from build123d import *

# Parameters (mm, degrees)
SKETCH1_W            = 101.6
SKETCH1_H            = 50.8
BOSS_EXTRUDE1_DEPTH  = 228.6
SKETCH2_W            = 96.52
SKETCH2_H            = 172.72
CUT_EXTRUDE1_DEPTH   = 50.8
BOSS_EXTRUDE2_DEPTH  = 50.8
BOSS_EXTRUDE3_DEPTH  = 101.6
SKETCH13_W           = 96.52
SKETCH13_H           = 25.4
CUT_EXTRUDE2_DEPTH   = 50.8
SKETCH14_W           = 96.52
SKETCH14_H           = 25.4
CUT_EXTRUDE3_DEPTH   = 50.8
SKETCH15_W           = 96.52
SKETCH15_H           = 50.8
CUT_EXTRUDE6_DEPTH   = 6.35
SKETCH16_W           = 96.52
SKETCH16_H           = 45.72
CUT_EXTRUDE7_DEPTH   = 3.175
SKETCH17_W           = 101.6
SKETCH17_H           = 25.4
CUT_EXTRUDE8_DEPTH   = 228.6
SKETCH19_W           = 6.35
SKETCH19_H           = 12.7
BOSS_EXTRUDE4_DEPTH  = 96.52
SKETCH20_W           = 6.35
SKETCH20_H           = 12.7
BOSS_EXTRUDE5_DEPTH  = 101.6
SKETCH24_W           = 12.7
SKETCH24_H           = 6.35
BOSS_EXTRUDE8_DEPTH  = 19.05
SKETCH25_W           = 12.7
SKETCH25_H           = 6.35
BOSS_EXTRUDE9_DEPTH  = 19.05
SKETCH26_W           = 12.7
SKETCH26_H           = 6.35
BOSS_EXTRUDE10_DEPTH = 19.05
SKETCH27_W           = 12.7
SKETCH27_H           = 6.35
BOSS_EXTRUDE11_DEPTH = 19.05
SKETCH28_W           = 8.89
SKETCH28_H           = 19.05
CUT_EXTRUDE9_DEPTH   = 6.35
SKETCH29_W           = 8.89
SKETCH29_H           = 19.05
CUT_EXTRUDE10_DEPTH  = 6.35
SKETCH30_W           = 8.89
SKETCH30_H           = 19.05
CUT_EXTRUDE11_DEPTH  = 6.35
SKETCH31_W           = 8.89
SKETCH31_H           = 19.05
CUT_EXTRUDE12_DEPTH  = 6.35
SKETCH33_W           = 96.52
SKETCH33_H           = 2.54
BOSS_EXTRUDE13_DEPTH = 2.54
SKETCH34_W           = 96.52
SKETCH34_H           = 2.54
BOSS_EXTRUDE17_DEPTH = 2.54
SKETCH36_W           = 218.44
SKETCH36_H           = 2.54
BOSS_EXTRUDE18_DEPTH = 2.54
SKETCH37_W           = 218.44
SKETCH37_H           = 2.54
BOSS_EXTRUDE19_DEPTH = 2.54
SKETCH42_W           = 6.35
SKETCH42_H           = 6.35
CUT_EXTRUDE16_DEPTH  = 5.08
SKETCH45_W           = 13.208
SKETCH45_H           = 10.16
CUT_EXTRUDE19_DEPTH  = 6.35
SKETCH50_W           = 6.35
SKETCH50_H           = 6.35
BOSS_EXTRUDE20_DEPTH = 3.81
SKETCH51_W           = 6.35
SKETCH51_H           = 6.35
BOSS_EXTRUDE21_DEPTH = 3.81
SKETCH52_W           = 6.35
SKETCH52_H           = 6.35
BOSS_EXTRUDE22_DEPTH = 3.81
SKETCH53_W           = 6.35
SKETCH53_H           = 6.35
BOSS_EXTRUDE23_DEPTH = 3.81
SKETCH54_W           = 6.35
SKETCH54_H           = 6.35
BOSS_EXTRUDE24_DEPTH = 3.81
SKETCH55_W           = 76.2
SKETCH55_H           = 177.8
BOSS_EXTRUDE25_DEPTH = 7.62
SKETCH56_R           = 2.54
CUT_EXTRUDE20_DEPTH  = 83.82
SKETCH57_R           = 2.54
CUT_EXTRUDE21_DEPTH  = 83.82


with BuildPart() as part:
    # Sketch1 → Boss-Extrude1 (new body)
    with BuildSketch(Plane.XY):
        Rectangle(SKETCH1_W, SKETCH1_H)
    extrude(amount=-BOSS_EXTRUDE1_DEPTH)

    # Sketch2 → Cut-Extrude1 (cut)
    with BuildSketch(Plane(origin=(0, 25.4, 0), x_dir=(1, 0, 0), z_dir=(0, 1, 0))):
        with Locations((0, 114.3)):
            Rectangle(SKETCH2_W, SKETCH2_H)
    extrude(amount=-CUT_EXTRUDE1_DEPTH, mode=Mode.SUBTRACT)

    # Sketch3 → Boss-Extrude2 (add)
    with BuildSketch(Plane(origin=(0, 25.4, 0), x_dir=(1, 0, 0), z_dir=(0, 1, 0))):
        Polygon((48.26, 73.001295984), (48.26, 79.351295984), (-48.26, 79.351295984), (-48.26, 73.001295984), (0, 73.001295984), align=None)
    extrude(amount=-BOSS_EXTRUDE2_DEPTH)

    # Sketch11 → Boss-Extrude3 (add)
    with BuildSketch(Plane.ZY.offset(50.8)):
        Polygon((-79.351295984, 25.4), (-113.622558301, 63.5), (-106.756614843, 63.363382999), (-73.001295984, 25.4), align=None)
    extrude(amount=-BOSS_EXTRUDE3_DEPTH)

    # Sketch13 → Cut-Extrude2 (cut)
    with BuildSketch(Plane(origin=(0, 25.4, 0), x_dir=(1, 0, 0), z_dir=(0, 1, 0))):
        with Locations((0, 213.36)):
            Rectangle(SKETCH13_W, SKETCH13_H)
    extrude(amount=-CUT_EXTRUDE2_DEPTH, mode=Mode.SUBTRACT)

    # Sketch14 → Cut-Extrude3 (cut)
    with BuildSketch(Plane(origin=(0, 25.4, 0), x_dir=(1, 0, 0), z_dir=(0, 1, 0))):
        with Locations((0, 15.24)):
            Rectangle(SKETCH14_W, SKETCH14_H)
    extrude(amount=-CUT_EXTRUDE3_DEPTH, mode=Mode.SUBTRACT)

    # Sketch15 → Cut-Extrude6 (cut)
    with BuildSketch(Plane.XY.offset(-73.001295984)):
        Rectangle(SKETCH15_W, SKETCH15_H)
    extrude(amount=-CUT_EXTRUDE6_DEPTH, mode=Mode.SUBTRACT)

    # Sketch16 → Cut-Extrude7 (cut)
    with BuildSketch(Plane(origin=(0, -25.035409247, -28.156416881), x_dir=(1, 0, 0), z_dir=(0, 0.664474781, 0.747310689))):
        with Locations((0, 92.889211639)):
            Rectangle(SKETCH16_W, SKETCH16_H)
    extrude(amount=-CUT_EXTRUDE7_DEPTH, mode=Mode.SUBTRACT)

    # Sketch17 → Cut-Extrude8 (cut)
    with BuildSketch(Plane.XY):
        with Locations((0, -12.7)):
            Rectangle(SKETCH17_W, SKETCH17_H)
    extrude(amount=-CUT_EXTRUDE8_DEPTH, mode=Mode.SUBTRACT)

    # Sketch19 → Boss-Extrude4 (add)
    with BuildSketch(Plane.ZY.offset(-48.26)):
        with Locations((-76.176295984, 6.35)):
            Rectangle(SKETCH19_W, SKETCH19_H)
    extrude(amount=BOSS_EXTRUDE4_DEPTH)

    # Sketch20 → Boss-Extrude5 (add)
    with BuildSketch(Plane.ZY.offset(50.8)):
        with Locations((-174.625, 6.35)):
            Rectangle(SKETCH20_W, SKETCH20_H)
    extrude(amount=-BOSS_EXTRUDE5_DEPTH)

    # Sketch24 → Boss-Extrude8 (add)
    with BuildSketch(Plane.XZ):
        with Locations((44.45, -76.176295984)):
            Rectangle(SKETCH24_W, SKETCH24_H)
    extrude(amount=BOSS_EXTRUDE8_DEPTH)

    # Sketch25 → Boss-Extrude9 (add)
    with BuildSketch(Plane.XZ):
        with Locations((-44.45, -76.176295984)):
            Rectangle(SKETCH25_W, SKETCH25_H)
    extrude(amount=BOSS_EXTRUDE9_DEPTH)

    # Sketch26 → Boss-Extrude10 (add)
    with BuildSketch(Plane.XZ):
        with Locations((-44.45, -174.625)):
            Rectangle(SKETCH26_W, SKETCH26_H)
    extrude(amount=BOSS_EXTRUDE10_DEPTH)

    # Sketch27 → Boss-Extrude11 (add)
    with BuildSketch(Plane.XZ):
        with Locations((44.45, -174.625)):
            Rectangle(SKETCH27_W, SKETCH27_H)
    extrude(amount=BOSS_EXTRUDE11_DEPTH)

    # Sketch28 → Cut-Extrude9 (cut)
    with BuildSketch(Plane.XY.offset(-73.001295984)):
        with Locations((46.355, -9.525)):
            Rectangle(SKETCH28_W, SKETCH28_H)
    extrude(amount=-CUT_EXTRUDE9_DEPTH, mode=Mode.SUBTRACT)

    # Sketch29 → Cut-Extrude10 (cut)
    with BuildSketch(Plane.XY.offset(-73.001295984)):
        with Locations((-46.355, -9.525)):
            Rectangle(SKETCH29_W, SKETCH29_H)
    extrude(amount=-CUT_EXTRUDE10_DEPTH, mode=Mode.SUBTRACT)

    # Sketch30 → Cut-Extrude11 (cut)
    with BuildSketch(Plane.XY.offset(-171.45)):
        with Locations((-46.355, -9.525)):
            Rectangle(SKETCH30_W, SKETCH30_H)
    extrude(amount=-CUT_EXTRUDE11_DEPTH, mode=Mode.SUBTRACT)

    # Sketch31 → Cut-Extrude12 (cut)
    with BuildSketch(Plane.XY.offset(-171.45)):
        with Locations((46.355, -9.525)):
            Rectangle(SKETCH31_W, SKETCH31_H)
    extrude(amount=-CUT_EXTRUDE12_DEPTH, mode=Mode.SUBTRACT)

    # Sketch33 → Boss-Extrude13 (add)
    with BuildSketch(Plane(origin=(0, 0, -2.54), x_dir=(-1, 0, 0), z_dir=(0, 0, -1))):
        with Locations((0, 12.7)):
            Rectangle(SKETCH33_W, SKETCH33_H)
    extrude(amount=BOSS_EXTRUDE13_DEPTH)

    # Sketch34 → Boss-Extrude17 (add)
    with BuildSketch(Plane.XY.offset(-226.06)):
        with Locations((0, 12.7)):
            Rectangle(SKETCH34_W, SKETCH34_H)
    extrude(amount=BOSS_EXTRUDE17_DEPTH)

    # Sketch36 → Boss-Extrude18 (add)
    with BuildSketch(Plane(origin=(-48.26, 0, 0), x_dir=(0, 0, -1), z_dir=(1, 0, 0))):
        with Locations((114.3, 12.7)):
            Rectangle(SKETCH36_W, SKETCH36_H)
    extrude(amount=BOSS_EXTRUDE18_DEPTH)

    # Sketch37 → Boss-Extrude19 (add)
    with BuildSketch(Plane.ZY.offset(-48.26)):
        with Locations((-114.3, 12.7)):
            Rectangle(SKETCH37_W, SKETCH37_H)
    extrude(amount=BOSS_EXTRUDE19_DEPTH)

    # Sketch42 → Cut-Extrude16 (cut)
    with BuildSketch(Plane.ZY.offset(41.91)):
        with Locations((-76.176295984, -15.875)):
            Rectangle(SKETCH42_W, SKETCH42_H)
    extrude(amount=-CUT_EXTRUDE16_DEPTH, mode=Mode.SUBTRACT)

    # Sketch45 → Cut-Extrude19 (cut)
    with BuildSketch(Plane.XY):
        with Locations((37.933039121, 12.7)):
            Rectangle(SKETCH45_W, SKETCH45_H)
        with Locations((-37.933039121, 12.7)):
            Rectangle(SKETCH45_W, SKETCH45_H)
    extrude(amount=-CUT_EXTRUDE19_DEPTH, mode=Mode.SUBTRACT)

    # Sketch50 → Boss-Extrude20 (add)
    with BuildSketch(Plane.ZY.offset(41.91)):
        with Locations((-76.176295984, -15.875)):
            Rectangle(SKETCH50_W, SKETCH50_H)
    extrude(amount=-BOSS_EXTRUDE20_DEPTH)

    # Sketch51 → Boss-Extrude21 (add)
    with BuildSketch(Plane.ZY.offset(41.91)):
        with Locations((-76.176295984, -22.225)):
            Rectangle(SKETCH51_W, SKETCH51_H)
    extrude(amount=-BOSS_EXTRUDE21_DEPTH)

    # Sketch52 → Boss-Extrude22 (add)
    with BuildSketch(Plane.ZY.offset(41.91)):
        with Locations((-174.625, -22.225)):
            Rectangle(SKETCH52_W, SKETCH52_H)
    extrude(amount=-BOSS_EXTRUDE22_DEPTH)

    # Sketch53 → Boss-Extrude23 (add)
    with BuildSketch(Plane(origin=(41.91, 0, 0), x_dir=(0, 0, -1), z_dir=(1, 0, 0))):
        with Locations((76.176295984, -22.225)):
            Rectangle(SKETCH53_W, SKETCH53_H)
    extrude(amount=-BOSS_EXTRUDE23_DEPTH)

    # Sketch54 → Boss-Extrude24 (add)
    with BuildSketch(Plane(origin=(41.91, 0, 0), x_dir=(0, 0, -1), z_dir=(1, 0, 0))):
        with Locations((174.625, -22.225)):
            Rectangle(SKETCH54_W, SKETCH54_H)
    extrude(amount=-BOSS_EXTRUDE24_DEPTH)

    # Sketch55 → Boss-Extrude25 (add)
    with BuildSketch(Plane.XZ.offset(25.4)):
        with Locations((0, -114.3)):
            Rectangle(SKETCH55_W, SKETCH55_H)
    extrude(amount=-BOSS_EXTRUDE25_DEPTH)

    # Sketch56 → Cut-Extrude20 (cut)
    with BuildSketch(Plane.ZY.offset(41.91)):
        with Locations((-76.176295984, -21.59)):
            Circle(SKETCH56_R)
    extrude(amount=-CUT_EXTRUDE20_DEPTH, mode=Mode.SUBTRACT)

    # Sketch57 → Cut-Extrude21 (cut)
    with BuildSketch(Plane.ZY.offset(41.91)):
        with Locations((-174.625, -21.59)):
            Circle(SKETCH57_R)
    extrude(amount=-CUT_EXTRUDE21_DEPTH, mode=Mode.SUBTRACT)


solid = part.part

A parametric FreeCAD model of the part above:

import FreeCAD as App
import Part
import Sketcher
from FreeCAD import Vector
Q = App.Units.Quantity

doc = App.newDocument("Part")
body = doc.addObject("PartDesign::Body", "Body")

# Sketch on XY plane
sketch1 = body.newObject("Sketcher::SketchObject", "Sketch")
sketch1.AttachmentSupport = (doc.getObject("XY_Plane"), [""])
sketch1.MapMode = "FlatFace"
sketch1.addGeometry([
    Part.LineSegment(Vector(-51, 25, 0), Vector(-51, -25, 0)),
    Part.LineSegment(Vector(-51, -25, 0), Vector(51, -25, 0)),
    Part.LineSegment(Vector(51, -25, 0), Vector(51, 25, 0)),
    Part.LineSegment(Vector(51, 25, 0), Vector(-51, 25, 0)),
], False)
sketch1.addConstraint([
    Sketcher.Constraint("Coincident", 0, 2, 1, 1),
    Sketcher.Constraint("Coincident", 1, 2, 2, 1),
    Sketcher.Constraint("Coincident", 2, 2, 3, 1),
    Sketcher.Constraint("Coincident", 3, 2, 0, 1),
    Sketcher.Constraint("Vertical", 0),
    Sketcher.Constraint("Horizontal", 1),
    Sketcher.Constraint("Vertical", 2),
    Sketcher.Constraint("Horizontal", 3),
    Sketcher.Constraint("Symmetric", 0, 2, 2, 2, -1, 1),
    Sketcher.Constraint("DistanceX", 1, 1, 1, 2, Q("4 in")),
    Sketcher.Constraint("DistanceY", 0, 2, 0, 1, Q("2 in")),
])
pad1 = body.newObject("PartDesign::Pad", "Pad")
pad1.Profile = sketch1
pad1.Length = Q("9 in")
pad1.Reversed = True

# Sketch on XZ plane
sketch2 = body.newObject("Sketcher::SketchObject", "Sketch001")
sketch2.AttachmentSupport = (doc.getObject("XZ_Plane"), [""])
sketch2.MapMode = "FlatFace"
sketch2.AttachmentOffset = App.Placement(Vector(0, 0, -1 * 25.4), App.Rotation())
sketch2.addGeometry([
    Part.LineSegment(Vector(-48, -201, 0), Vector(-48, -28, 0)),
    Part.LineSegment(Vector(-48, -28, 0), Vector(48, -28, 0)),
    Part.LineSegment(Vector(48, -28, 0), Vector(48, -201, 0)),
    Part.LineSegment(Vector(48, -201, 0), Vector(-48, -201, 0)),
], False)
sketch2.addConstraint([
    Sketcher.Constraint("Coincident", 0, 2, 1, 1),
    Sketcher.Constraint("Coincident", 1, 2, 2, 1),
    Sketcher.Constraint("Coincident", 2, 2, 3, 1),
    Sketcher.Constraint("Coincident", 3, 2, 0, 1),
    Sketcher.Constraint("Vertical", 0),
    Sketcher.Constraint("Horizontal", 1),
    Sketcher.Constraint("Vertical", 2),
    Sketcher.Constraint("Horizontal", 3),
    Sketcher.Constraint("DistanceX", 1, 1, 1, 2, Q("3.8 in")),
    Sketcher.Constraint("DistanceY", 0, 1, 0, 2, Q("6.8 in")),
    Sketcher.Constraint("DistanceX", 0, 2, -1, 1, Q("1.9 in")),
    Sketcher.Constraint("DistanceY", 0, 2, -1, 1, Q("1.1 in")),
])
pocket1 = body.newObject("PartDesign::Pocket", "Pocket")
pocket1.Profile = sketch2
pocket1.Length = Q("2 in")
pocket1.Reversed = True

# Sketch on XZ plane
sketch3 = body.newObject("Sketcher::SketchObject", "Sketch002")
sketch3.AttachmentSupport = (doc.getObject("XZ_Plane"), [""])
sketch3.MapMode = "FlatFace"
sketch3.AttachmentOffset = App.Placement(Vector(0, 0, -1 * 25.4), App.Rotation())
sketch3.addGeometry([
    Part.LineSegment(Vector(48, -73, 0), Vector(48, -79, 0)),
    Part.LineSegment(Vector(48, -79, 0), Vector(-48, -79, 0)),
    Part.LineSegment(Vector(-48, -79, 0), Vector(-48, -73, 0)),
    Part.LineSegment(Vector(-48, -73, 0), Vector(48, -73, 0)),
], False)
sketch3.addConstraint([
    Sketcher.Constraint("Coincident", 0, 2, 1, 1),
    Sketcher.Constraint("Coincident", 1, 2, 2, 1),
    Sketcher.Constraint("Coincident", 2, 2, 3, 1),
    Sketcher.Constraint("Coincident", 3, 2, 0, 1),
    Sketcher.Constraint("Vertical", 0),
    Sketcher.Constraint("Horizontal", 1),
    Sketcher.Constraint("Vertical", 2),
    Sketcher.Constraint("Horizontal", 3),
    Sketcher.Constraint("DistanceX", 1, 2, 1, 1, Q("3.8 in")),
    Sketcher.Constraint("DistanceY", 0, 2, 0, 1, Q("0.25 in")),
    Sketcher.Constraint("DistanceX", -1, 1, 0, 2, Q("1.9 in")),
    Sketcher.Constraint("DistanceY", 0, 2, -1, 1, Q("79.351296 mm")),
])
pad2 = body.newObject("PartDesign::Pad", "Pad001")
pad2.Profile = sketch3
pad2.Length = Q("2 in")

# Sketch on YZ plane
sketch4 = body.newObject("Sketcher::SketchObject", "Sketch003")
sketch4.AttachmentSupport = (doc.getObject("YZ_Plane"), [""])
sketch4.MapMode = "FlatFace"
sketch4.AttachmentOffset = App.Placement(Vector(0, 0, -2 * 25.4), App.Rotation())
sketch4.addGeometry([
    Part.LineSegment(Vector(64, -114, 0), Vector(25, -79, 0)),
    Part.LineSegment(Vector(25, -79, 0), Vector(25, -73, 0)),
    Part.LineSegment(Vector(25, -73, 0), Vector(63, -107, 0)),
    Part.LineSegment(Vector(63, -107, 0), Vector(64, -114, 0)),
], False)
sketch4.addConstraint([
    Sketcher.Constraint("Coincident", 0, 2, 1, 1),
    Sketcher.Constraint("Coincident", 1, 2, 2, 1),
    Sketcher.Constraint("Coincident", 2, 2, 3, 1),
    Sketcher.Constraint("Coincident", 3, 2, 0, 1),
    Sketcher.Constraint("Vertical", 1),
    Sketcher.Constraint("Distance", 2, Q("2 in")),
    Sketcher.Constraint("DistanceX", -1, 1, 0, 2, Q("1 in")),
    Sketcher.Constraint("DistanceY", 1, 1, 1, 2, Q("0.25 in")),
    Sketcher.Constraint("DistanceX", -1, 1, 3, 2, Q("2.5 in")),
    Sketcher.Constraint("DistanceY", 3, 2, -1, 1, Q("113.622558 mm")),
    Sketcher.Constraint("DistanceY", 2, 2, 0, 2, Q("27.405319 mm")),
    Sketcher.Constraint("Distance", 0, Q("51.245775 mm")),
])
pad3 = body.newObject("PartDesign::Pad", "Pad002")
pad3.Profile = sketch4
pad3.Length = Q("4 in")

# Sketch on XZ plane
sketch5 = body.newObject("Sketcher::SketchObject", "Sketch004")
sketch5.AttachmentSupport = (doc.getObject("XZ_Plane"), [""])
sketch5.MapMode = "FlatFace"
sketch5.AttachmentOffset = App.Placement(Vector(0, 0, -1 * 25.4), App.Rotation())
sketch5.addGeometry([
    Part.LineSegment(Vector(-48, -226, 0), Vector(-48, -201, 0)),
    Part.LineSegment(Vector(-48, -201, 0), Vector(48, -201, 0)),
    Part.LineSegment(Vector(48, -201, 0), Vector(48, -226, 0)),
    Part.LineSegment(Vector(48, -226, 0), Vector(-48, -226, 0)),
], False)
sketch5.addConstraint([
    Sketcher.Constraint("Coincident", 0, 2, 1, 1),
    Sketcher.Constraint("Coincident", 1, 2, 2, 1),
    Sketcher.Constraint("Coincident", 2, 2, 3, 1),
    Sketcher.Constraint("Coincident", 3, 2, 0, 1),
    Sketcher.Constraint("Vertical", 0),
    Sketcher.Constraint("Horizontal", 1),
    Sketcher.Constraint("Vertical", 2),
    Sketcher.Constraint("Horizontal", 3),
    Sketcher.Constraint("DistanceY", 0, 1, 0, 2, Q("1 in")),
    Sketcher.Constraint("DistanceX", 1, 1, 1, 2, Q("3.8 in")),
    Sketcher.Constraint("DistanceX", 0, 2, -1, 1, Q("1.9 in")),
    Sketcher.Constraint("DistanceY", 0, 2, -1, 1, Q("7.9 in")),
])
pocket2 = body.newObject("PartDesign::Pocket", "Pocket001")
pocket2.Profile = sketch5
pocket2.Length = Q("2 in")
pocket2.Reversed = True

# Sketch on XZ plane
sketch6 = body.newObject("Sketcher::SketchObject", "Sketch005")
sketch6.AttachmentSupport = (doc.getObject("XZ_Plane"), [""])
sketch6.MapMode = "FlatFace"
sketch6.AttachmentOffset = App.Placement(Vector(0, 0, -1 * 25.4), App.Rotation())
sketch6.addGeometry([
    Part.LineSegment(Vector(-48, -28, 0), Vector(-48, -3, 0)),
    Part.LineSegment(Vector(-48, -3, 0), Vector(48, -3, 0)),
    Part.LineSegment(Vector(48, -3, 0), Vector(48, -28, 0)),
    Part.LineSegment(Vector(48, -28, 0), Vector(-48, -28, 0)),
], False)
sketch6.addConstraint([
    Sketcher.Constraint("Coincident", 0, 2, 1, 1),
    Sketcher.Constraint("Coincident", 1, 2, 2, 1),
    Sketcher.Constraint("Coincident", 2, 2, 3, 1),
    Sketcher.Constraint("Coincident", 3, 2, 0, 1),
    Sketcher.Constraint("Vertical", 0),
    Sketcher.Constraint("Horizontal", 1),
    Sketcher.Constraint("Vertical", 2),
    Sketcher.Constraint("Horizontal", 3),
    Sketcher.Constraint("DistanceY", 0, 1, 0, 2, Q("1 in")),
    Sketcher.Constraint("DistanceX", 1, 1, 1, 2, Q("3.8 in")),
    Sketcher.Constraint("DistanceX", 0, 2, -1, 1, Q("1.9 in")),
    Sketcher.Constraint("DistanceY", 0, 2, -1, 1, Q("0.1 in")),
])
pocket3 = body.newObject("PartDesign::Pocket", "Pocket002")
pocket3.Profile = sketch6
pocket3.Length = Q("2 in")
pocket3.Reversed = True

# Sketch on XY plane
sketch7 = body.newObject("Sketcher::SketchObject", "Sketch006")
sketch7.AttachmentSupport = (doc.getObject("XY_Plane"), [""])
sketch7.MapMode = "FlatFace"
sketch7.AttachmentOffset = App.Placement(Vector(0, 0, -73.001296), App.Rotation())
sketch7.addGeometry([
    Part.LineSegment(Vector(-48, 25, 0), Vector(-48, -25, 0)),
    Part.LineSegment(Vector(-48, -25, 0), Vector(48, -25, 0)),
    Part.LineSegment(Vector(48, -25, 0), Vector(48, 25, 0)),
    Part.LineSegment(Vector(48, 25, 0), Vector(-48, 25, 0)),
], False)
sketch7.addConstraint([
    Sketcher.Constraint("Coincident", 0, 2, 1, 1),
    Sketcher.Constraint("Coincident", 1, 2, 2, 1),
    Sketcher.Constraint("Coincident", 2, 2, 3, 1),
    Sketcher.Constraint("Coincident", 3, 2, 0, 1),
    Sketcher.Constraint("Vertical", 0),
    Sketcher.Constraint("Horizontal", 1),
    Sketcher.Constraint("Vertical", 2),
    Sketcher.Constraint("Horizontal", 3),
    Sketcher.Constraint("Symmetric", 0, 2, 2, 2, -1, 1),
    Sketcher.Constraint("DistanceY", 0, 2, 0, 1, Q("2 in")),
    Sketcher.Constraint("DistanceX", 1, 1, 1, 2, Q("3.8 in")),
])
pocket4 = body.newObject("PartDesign::Pocket", "Pocket003")
pocket4.Profile = sketch7
pocket4.Length = Q("0.25 in")

# Sketch on an angled plane
sketch8 = body.newObject("Sketcher::SketchObject", "Sketch007")
sketch8.Placement = App.Placement(Vector(0, -25.035409, -28.156417), App.Rotation(Vector(1, 0, 0), Vector(0, 0.747310689, -0.664474781), Vector(0, 0.664474781, 0.747310689), "ZXY"))
sketch8.addGeometry([
    Part.LineSegment(Vector(-48, 116, 0), Vector(-48, 70, 0)),
    Part.LineSegment(Vector(-48, 70, 0), Vector(48, 70, 0)),
    Part.LineSegment(Vector(48, 70, 0), Vector(48, 116, 0)),
    Part.LineSegment(Vector(48, 116, 0), Vector(-48, 116, 0)),
], False)
sketch8.addConstraint([
    Sketcher.Constraint("Coincident", 0, 2, 1, 1),
    Sketcher.Constraint("Coincident", 1, 2, 2, 1),
    Sketcher.Constraint("Coincident", 2, 2, 3, 1),
    Sketcher.Constraint("Coincident", 3, 2, 0, 1),
    Sketcher.Constraint("Vertical", 0),
    Sketcher.Constraint("Horizontal", 1),
    Sketcher.Constraint("Vertical", 2),
    Sketcher.Constraint("Horizontal", 3),
    Sketcher.Constraint("DistanceX", 1, 1, 1, 2, Q("3.8 in")),
    Sketcher.Constraint("DistanceY", 0, 2, 0, 1, Q("1.8 in")),
    Sketcher.Constraint("DistanceX", 0, 2, -1, 1, Q("1.9 in")),
    Sketcher.Constraint("DistanceY", -1, 1, 0, 2, Q("70.029212 mm")),
])
pocket5 = body.newObject("PartDesign::Pocket", "Pocket004")
pocket5.Profile = sketch8
pocket5.Length = Q("0.125 in")

# Sketch on XY plane
sketch9 = body.newObject("Sketcher::SketchObject", "Sketch008")
sketch9.AttachmentSupport = (doc.getObject("XY_Plane"), [""])
sketch9.MapMode = "FlatFace"
sketch9.addGeometry([
    Part.LineSegment(Vector(-51, 0, 0), Vector(-51, -25, 0)),
    Part.LineSegment(Vector(-51, -25, 0), Vector(51, -25, 0)),
    Part.LineSegment(Vector(51, -25, 0), Vector(51, 0, 0)),
    Part.LineSegment(Vector(51, 0, 0), Vector(-51, 0, 0)),
], False)
sketch9.addConstraint([
    Sketcher.Constraint("Coincident", 0, 2, 1, 1),
    Sketcher.Constraint("Coincident", 1, 2, 2, 1),
    Sketcher.Constraint("Coincident", 2, 2, 3, 1),
    Sketcher.Constraint("Coincident", 3, 2, 0, 1),
    Sketcher.Constraint("Vertical", 0),
    Sketcher.Constraint("Horizontal", 1),
    Sketcher.Constraint("Vertical", 2),
    Sketcher.Constraint("Horizontal", 3),
    Sketcher.Constraint("Symmetric", 2, 2, 3, 2, -1, 1),
    Sketcher.Constraint("DistanceX", 1, 1, 1, 2, Q("4 in")),
    Sketcher.Constraint("DistanceY", 0, 2, 0, 1, Q("1 in")),
])
pocket6 = body.newObject("PartDesign::Pocket", "Pocket005")
pocket6.Profile = sketch9
pocket6.Length = Q("9 in")

# Sketch on YZ plane
sketch10 = body.newObject("Sketcher::SketchObject", "Sketch009")
sketch10.AttachmentSupport = (doc.getObject("YZ_Plane"), [""])
sketch10.MapMode = "FlatFace"
sketch10.AttachmentOffset = App.Placement(Vector(0, 0, 1.9 * 25.4), App.Rotation())
sketch10.addGeometry([
    Part.LineSegment(Vector(13, -79, 0), Vector(0, -79, 0)),
    Part.LineSegment(Vector(0, -79, 0), Vector(0, -73, 0)),
    Part.LineSegment(Vector(0, -73, 0), Vector(13, -73, 0)),
    Part.LineSegment(Vector(13, -73, 0), Vector(13, -79, 0)),
], False)
sketch10.addConstraint([
    Sketcher.Constraint("Coincident", 0, 2, 1, 1),
    Sketcher.Constraint("Coincident", 1, 2, 2, 1),
    Sketcher.Constraint("Coincident", 2, 2, 3, 1),
    Sketcher.Constraint("Coincident", 3, 2, 0, 1),
    Sketcher.Constraint("Horizontal", 0),
    Sketcher.Constraint("Vertical", 1),
    Sketcher.Constraint("Horizontal", 2),
    Sketcher.Constraint("Vertical", 3),
    Sketcher.Constraint("PointOnObject", 0, 2, -2),
    Sketcher.Constraint("DistanceX", 0, 2, 0, 1, Q("0.5 in")),
    Sketcher.Constraint("DistanceY", 1, 1, 1, 2, Q("0.25 in")),
    Sketcher.Constraint("DistanceY", 0, 2, -1, 1, Q("79.351296 mm")),
])
pad4 = body.newObject("PartDesign::Pad", "Pad003")
pad4.Profile = sketch10
pad4.Length = Q("3.8 in")
pad4.Reversed = True

# Sketch on YZ plane
sketch11 = body.newObject("Sketcher::SketchObject", "Sketch010")
sketch11.AttachmentSupport = (doc.getObject("YZ_Plane"), [""])
sketch11.MapMode = "FlatFace"
sketch11.AttachmentOffset = App.Placement(Vector(0, 0, -2 * 25.4), App.Rotation())
sketch11.addGeometry([
    Part.LineSegment(Vector(13, -178, 0), Vector(0, -178, 0)),
    Part.LineSegment(Vector(0, -178, 0), Vector(0, -171, 0)),
    Part.LineSegment(Vector(0, -171, 0), Vector(13, -171, 0)),
    Part.LineSegment(Vector(13, -171, 0), Vector(13, -178, 0)),
], False)
sketch11.addConstraint([
    Sketcher.Constraint("Coincident", 0, 2, 1, 1),
    Sketcher.Constraint("Coincident", 1, 2, 2, 1),
    Sketcher.Constraint("Coincident", 2, 2, 3, 1),
    Sketcher.Constraint("Coincident", 3, 2, 0, 1),
    Sketcher.Constraint("Horizontal", 0),
    Sketcher.Constraint("Vertical", 1),
    Sketcher.Constraint("Horizontal", 2),
    Sketcher.Constraint("Vertical", 3),
    Sketcher.Constraint("PointOnObject", 0, 2, -2),
    Sketcher.Constraint("DistanceX", 0, 2, 0, 1, Q("0.5 in")),
    Sketcher.Constraint("DistanceY", 0, 2, -1, 1, Q("7 in")),
    Sketcher.Constraint("DistanceY", 1, 1, 1, 2, Q("0.25 in")),
])
pad5 = body.newObject("PartDesign::Pad", "Pad004")
pad5.Profile = sketch11
pad5.Length = Q("4 in")

# Sketch on XZ plane
sketch12 = body.newObject("Sketcher::SketchObject", "Sketch011")
sketch12.AttachmentSupport = (doc.getObject("XZ_Plane"), [""])
sketch12.MapMode = "FlatFace"
sketch12.addGeometry([
    Part.LineSegment(Vector(38, -73, 0), Vector(38, -79, 0)),
    Part.LineSegment(Vector(38, -79, 0), Vector(51, -79, 0)),
    Part.LineSegment(Vector(51, -79, 0), Vector(51, -73, 0)),
    Part.LineSegment(Vector(51, -73, 0), Vector(38, -73, 0)),
], False)
sketch12.addConstraint([
    Sketcher.Constraint("Coincident", 0, 2, 1, 1),
    Sketcher.Constraint("Coincident", 1, 2, 2, 1),
    Sketcher.Constraint("Coincident", 2, 2, 3, 1),
    Sketcher.Constraint("Coincident", 3, 2, 0, 1),
    Sketcher.Constraint("Vertical", 0),
    Sketcher.Constraint("Horizontal", 1),
    Sketcher.Constraint("Vertical", 2),
    Sketcher.Constraint("Horizontal", 3),
    Sketcher.Constraint("DistanceX", 1, 1, 1, 2, Q("0.5 in")),
    Sketcher.Constraint("DistanceX", -1, 1, 1, 2, Q("2 in")),
    Sketcher.Constraint("DistanceY", 0, 2, 0, 1, Q("0.25 in")),
    Sketcher.Constraint("DistanceY", 0, 2, -1, 1, Q("79.351296 mm")),
])
pad6 = body.newObject("PartDesign::Pad", "Pad005")
pad6.Profile = sketch12
pad6.Length = Q("0.75 in")

# Sketch on XZ plane
sketch13 = body.newObject("Sketcher::SketchObject", "Sketch012")
sketch13.AttachmentSupport = (doc.getObject("XZ_Plane"), [""])
sketch13.MapMode = "FlatFace"
sketch13.addGeometry([
    Part.LineSegment(Vector(-51, -73, 0), Vector(-51, -79, 0)),
    Part.LineSegment(Vector(-51, -79, 0), Vector(-38, -79, 0)),
    Part.LineSegment(Vector(-38, -79, 0), Vector(-38, -73, 0)),
    Part.LineSegment(Vector(-38, -73, 0), Vector(-51, -73, 0)),
], False)
sketch13.addConstraint([
    Sketcher.Constraint("Coincident", 0, 2, 1, 1),
    Sketcher.Constraint("Coincident", 1, 2, 2, 1),
    Sketcher.Constraint("Coincident", 2, 2, 3, 1),
    Sketcher.Constraint("Coincident", 3, 2, 0, 1),
    Sketcher.Constraint("Vertical", 0),
    Sketcher.Constraint("Horizontal", 1),
    Sketcher.Constraint("Vertical", 2),
    Sketcher.Constraint("Horizontal", 3),
    Sketcher.Constraint("DistanceX", 1, 1, 1, 2, Q("0.5 in")),
    Sketcher.Constraint("DistanceX", 0, 2, -1, 1, Q("2 in")),
    Sketcher.Constraint("DistanceY", 0, 2, 0, 1, Q("0.25 in")),
    Sketcher.Constraint("DistanceY", 0, 2, -1, 1, Q("79.351296 mm")),
])
pad7 = body.newObject("PartDesign::Pad", "Pad006")
pad7.Profile = sketch13
pad7.Length = Q("0.75 in")

# Sketch on XZ plane
sketch14 = body.newObject("Sketcher::SketchObject", "Sketch013")
sketch14.AttachmentSupport = (doc.getObject("XZ_Plane"), [""])
sketch14.MapMode = "FlatFace"
sketch14.addGeometry([
    Part.LineSegment(Vector(-51, -171, 0), Vector(-51, -178, 0)),
    Part.LineSegment(Vector(-51, -178, 0), Vector(-38, -178, 0)),
    Part.LineSegment(Vector(-38, -178, 0), Vector(-38, -171, 0)),
    Part.LineSegment(Vector(-38, -171, 0), Vector(-51, -171, 0)),
], False)
sketch14.addConstraint([
    Sketcher.Constraint("Coincident", 0, 2, 1, 1),
    Sketcher.Constraint("Coincident", 1, 2, 2, 1),
    Sketcher.Constraint("Coincident", 2, 2, 3, 1),
    Sketcher.Constraint("Coincident", 3, 2, 0, 1),
    Sketcher.Constraint("Vertical", 0),
    Sketcher.Constraint("Horizontal", 1),
    Sketcher.Constraint("Vertical", 2),
    Sketcher.Constraint("Horizontal", 3),
    Sketcher.Constraint("DistanceX", 1, 1, 1, 2, Q("0.5 in")),
    Sketcher.Constraint("DistanceX", 0, 2, -1, 1, Q("2 in")),
    Sketcher.Constraint("DistanceY", 0, 2, -1, 1, Q("7 in")),
    Sketcher.Constraint("DistanceY", 0, 2, 0, 1, Q("0.25 in")),
])
pad8 = body.newObject("PartDesign::Pad", "Pad007")
pad8.Profile = sketch14
pad8.Length = Q("0.75 in")

# Sketch on XZ plane
sketch15 = body.newObject("Sketcher::SketchObject", "Sketch014")
sketch15.AttachmentSupport = (doc.getObject("XZ_Plane"), [""])
sketch15.MapMode = "FlatFace"
sketch15.addGeometry([
    Part.LineSegment(Vector(38, -171, 0), Vector(38, -178, 0)),
    Part.LineSegment(Vector(38, -178, 0), Vector(51, -178, 0)),
    Part.LineSegment(Vector(51, -178, 0), Vector(51, -171, 0)),
    Part.LineSegment(Vector(51, -171, 0), Vector(38, -171, 0)),
], False)
sketch15.addConstraint([
    Sketcher.Constraint("Coincident", 0, 2, 1, 1),
    Sketcher.Constraint("Coincident", 1, 2, 2, 1),
    Sketcher.Constraint("Coincident", 2, 2, 3, 1),
    Sketcher.Constraint("Coincident", 3, 2, 0, 1),
    Sketcher.Constraint("Vertical", 0),
    Sketcher.Constraint("Horizontal", 1),
    Sketcher.Constraint("Vertical", 2),
    Sketcher.Constraint("Horizontal", 3),
    Sketcher.Constraint("DistanceX", 1, 1, 1, 2, Q("0.5 in")),
    Sketcher.Constraint("DistanceY", 0, 2, -1, 1, Q("7 in")),
    Sketcher.Constraint("DistanceX", -1, 1, 1, 2, Q("2 in")),
    Sketcher.Constraint("DistanceY", 0, 2, 0, 1, Q("0.25 in")),
])
pad9 = body.newObject("PartDesign::Pad", "Pad008")
pad9.Profile = sketch15
pad9.Length = Q("0.75 in")

# Sketch on XY plane
sketch16 = body.newObject("Sketcher::SketchObject", "Sketch015")
sketch16.AttachmentSupport = (doc.getObject("XY_Plane"), [""])
sketch16.MapMode = "FlatFace"
sketch16.AttachmentOffset = App.Placement(Vector(0, 0, -73.001296), App.Rotation())
sketch16.addGeometry([
    Part.LineSegment(Vector(42, 0, 0), Vector(42, -19, 0)),
    Part.LineSegment(Vector(42, -19, 0), Vector(51, -19, 0)),
    Part.LineSegment(Vector(51, -19, 0), Vector(51, 0, 0)),
    Part.LineSegment(Vector(51, 0, 0), Vector(42, 0, 0)),
], False)
sketch16.addConstraint([
    Sketcher.Constraint("Coincident", 0, 2, 1, 1),
    Sketcher.Constraint("Coincident", 1, 2, 2, 1),
    Sketcher.Constraint("Coincident", 2, 2, 3, 1),
    Sketcher.Constraint("Coincident", 3, 2, 0, 1),
    Sketcher.Constraint("Vertical", 0),
    Sketcher.Constraint("Horizontal", 1),
    Sketcher.Constraint("Vertical", 2),
    Sketcher.Constraint("Horizontal", 3),
    Sketcher.Constraint("PointOnObject", 2, 2, -1),
    Sketcher.Constraint("DistanceX", -1, 1, 1, 2, Q("2 in")),
    Sketcher.Constraint("DistanceX", 1, 1, 1, 2, Q("0.35 in")),
    Sketcher.Constraint("DistanceY", 0, 2, 0, 1, Q("0.75 in")),
])
pocket7 = body.newObject("PartDesign::Pocket", "Pocket006")
pocket7.Profile = sketch16
pocket7.Length = Q("0.25 in")

# Sketch on XY plane
sketch17 = body.newObject("Sketcher::SketchObject", "Sketch016")
sketch17.AttachmentSupport = (doc.getObject("XY_Plane"), [""])
sketch17.MapMode = "FlatFace"
sketch17.AttachmentOffset = App.Placement(Vector(0, 0, -73.001296), App.Rotation())
sketch17.addGeometry([
    Part.LineSegment(Vector(-51, 0, 0), Vector(-51, -19, 0)),
    Part.LineSegment(Vector(-51, -19, 0), Vector(-42, -19, 0)),
    Part.LineSegment(Vector(-42, -19, 0), Vector(-42, 0, 0)),
    Part.LineSegment(Vector(-42, 0, 0), Vector(-51, 0, 0)),
], False)
sketch17.addConstraint([
    Sketcher.Constraint("Coincident", 0, 2, 1, 1),
    Sketcher.Constraint("Coincident", 1, 2, 2, 1),
    Sketcher.Constraint("Coincident", 2, 2, 3, 1),
    Sketcher.Constraint("Coincident", 3, 2, 0, 1),
    Sketcher.Constraint("Vertical", 0),
    Sketcher.Constraint("Horizontal", 1),
    Sketcher.Constraint("Vertical", 2),
    Sketcher.Constraint("Horizontal", 3),
    Sketcher.Constraint("PointOnObject", 2, 2, -1),
    Sketcher.Constraint("DistanceX", 0, 2, -1, 1, Q("2 in")),
    Sketcher.Constraint("DistanceX", 1, 1, 1, 2, Q("0.35 in")),
    Sketcher.Constraint("DistanceY", 0, 2, 0, 1, Q("0.75 in")),
])
pocket8 = body.newObject("PartDesign::Pocket", "Pocket007")
pocket8.Profile = sketch17
pocket8.Length = Q("0.25 in")

# Sketch on XY plane
sketch18 = body.newObject("Sketcher::SketchObject", "Sketch017")
sketch18.AttachmentSupport = (doc.getObject("XY_Plane"), [""])
sketch18.MapMode = "FlatFace"
sketch18.AttachmentOffset = App.Placement(Vector(0, 0, -6.75 * 25.4), App.Rotation())
sketch18.addGeometry([
    Part.LineSegment(Vector(-51, 0, 0), Vector(-51, -19, 0)),
    Part.LineSegment(Vector(-51, -19, 0), Vector(-42, -19, 0)),
    Part.LineSegment(Vector(-42, -19, 0), Vector(-42, 0, 0)),
    Part.LineSegment(Vector(-42, 0, 0), Vector(-51, 0, 0)),
], False)
sketch18.addConstraint([
    Sketcher.Constraint("Coincident", 0, 2, 1, 1),
    Sketcher.Constraint("Coincident", 1, 2, 2, 1),
    Sketcher.Constraint("Coincident", 2, 2, 3, 1),
    Sketcher.Constraint("Coincident", 3, 2, 0, 1),
    Sketcher.Constraint("Vertical", 0),
    Sketcher.Constraint("Horizontal", 1),
    Sketcher.Constraint("Vertical", 2),
    Sketcher.Constraint("Horizontal", 3),
    Sketcher.Constraint("PointOnObject", 2, 2, -1),
    Sketcher.Constraint("DistanceX", 0, 2, -1, 1, Q("2 in")),
    Sketcher.Constraint("DistanceX", 1, 1, 1, 2, Q("0.35 in")),
    Sketcher.Constraint("DistanceY", 0, 2, 0, 1, Q("0.75 in")),
])
pocket9 = body.newObject("PartDesign::Pocket", "Pocket008")
pocket9.Profile = sketch18
pocket9.Length = Q("0.25 in")

# Sketch on XY plane
sketch19 = body.newObject("Sketcher::SketchObject", "Sketch018")
sketch19.AttachmentSupport = (doc.getObject("XY_Plane"), [""])
sketch19.MapMode = "FlatFace"
sketch19.AttachmentOffset = App.Placement(Vector(0, 0, -6.75 * 25.4), App.Rotation())
sketch19.addGeometry([
    Part.LineSegment(Vector(42, 0, 0), Vector(42, -19, 0)),
    Part.LineSegment(Vector(42, -19, 0), Vector(51, -19, 0)),
    Part.LineSegment(Vector(51, -19, 0), Vector(51, 0, 0)),
    Part.LineSegment(Vector(51, 0, 0), Vector(42, 0, 0)),
], False)
sketch19.addConstraint([
    Sketcher.Constraint("Coincident", 0, 2, 1, 1),
    Sketcher.Constraint("Coincident", 1, 2, 2, 1),
    Sketcher.Constraint("Coincident", 2, 2, 3, 1),
    Sketcher.Constraint("Coincident", 3, 2, 0, 1),
    Sketcher.Constraint("Vertical", 0),
    Sketcher.Constraint("Horizontal", 1),
    Sketcher.Constraint("Vertical", 2),
    Sketcher.Constraint("Horizontal", 3),
    Sketcher.Constraint("PointOnObject", 2, 2, -1),
    Sketcher.Constraint("DistanceX", -1, 1, 1, 2, Q("2 in")),
    Sketcher.Constraint("DistanceX", 1, 1, 1, 2, Q("0.35 in")),
    Sketcher.Constraint("DistanceY", 0, 2, 0, 1, Q("0.75 in")),
])
pocket10 = body.newObject("PartDesign::Pocket", "Pocket009")
pocket10.Profile = sketch19
pocket10.Length = Q("0.25 in")

# Sketch on XY plane
sketch20 = body.newObject("Sketcher::SketchObject", "Sketch019")
sketch20.AttachmentSupport = (doc.getObject("XY_Plane"), [""])
sketch20.MapMode = "FlatFace"
sketch20.AttachmentOffset = App.Placement(Vector(0, 0, -0.1 * 25.4), App.Rotation())
sketch20.addGeometry([
    Part.LineSegment(Vector(48.3, 14, 0), Vector(48.3, 11.4, 0)),
    Part.LineSegment(Vector(48.3, 11.4, 0), Vector(-48.3, 11.4, 0)),
    Part.LineSegment(Vector(-48.3, 11.4, 0), Vector(-48.3, 14, 0)),
    Part.LineSegment(Vector(-48.3, 14, 0), Vector(48.3, 14, 0)),
], False)
sketch20.addConstraint([
    Sketcher.Constraint("Coincident", 0, 2, 1, 1),
    Sketcher.Constraint("Coincident", 1, 2, 2, 1),
    Sketcher.Constraint("Coincident", 2, 2, 3, 1),
    Sketcher.Constraint("Coincident", 3, 2, 0, 1),
    Sketcher.Constraint("Vertical", 0),
    Sketcher.Constraint("Horizontal", 1),
    Sketcher.Constraint("Vertical", 2),
    Sketcher.Constraint("Horizontal", 3),
    Sketcher.Constraint("DistanceX", 1, 2, 1, 1, Q("3.8 in")),
    Sketcher.Constraint("DistanceY", 0, 2, 0, 1, Q("0.1 in")),
    Sketcher.Constraint("DistanceX", -1, 1, 0, 2, Q("1.9 in")),
    Sketcher.Constraint("DistanceY", -1, 1, 0, 2, Q("0.45 in")),
])
pad10 = body.newObject("PartDesign::Pad", "Pad009")
pad10.Profile = sketch20
pad10.Length = Q("0.1 in")
pad10.Reversed = True

# Sketch on XY plane
sketch21 = body.newObject("Sketcher::SketchObject", "Sketch020")
sketch21.AttachmentSupport = (doc.getObject("XY_Plane"), [""])
sketch21.MapMode = "FlatFace"
sketch21.AttachmentOffset = App.Placement(Vector(0, 0, -8.9 * 25.4), App.Rotation())
sketch21.addGeometry([
    Part.LineSegment(Vector(-48.3, 14, 0), Vector(-48.3, 11.4, 0)),
    Part.LineSegment(Vector(-48.3, 11.4, 0), Vector(48.3, 11.4, 0)),
    Part.LineSegment(Vector(48.3, 11.4, 0), Vector(48.3, 14, 0)),
    Part.LineSegment(Vector(48.3, 14, 0), Vector(-48.3, 14, 0)),
], False)
sketch21.addConstraint([
    Sketcher.Constraint("Coincident", 0, 2, 1, 1),
    Sketcher.Constraint("Coincident", 1, 2, 2, 1),
    Sketcher.Constraint("Coincident", 2, 2, 3, 1),
    Sketcher.Constraint("Coincident", 3, 2, 0, 1),
    Sketcher.Constraint("Vertical", 0),
    Sketcher.Constraint("Horizontal", 1),
    Sketcher.Constraint("Vertical", 2),
    Sketcher.Constraint("Horizontal", 3),
    Sketcher.Constraint("DistanceX", 1, 1, 1, 2, Q("3.8 in")),
    Sketcher.Constraint("DistanceY", 0, 2, 0, 1, Q("0.1 in")),
    Sketcher.Constraint("DistanceX", 0, 2, -1, 1, Q("1.9 in")),
    Sketcher.Constraint("DistanceY", -1, 1, 0, 2, Q("0.45 in")),
])
pad11 = body.newObject("PartDesign::Pad", "Pad010")
pad11.Profile = sketch21
pad11.Length = Q("0.1 in")

# Sketch on YZ plane
sketch22 = body.newObject("Sketcher::SketchObject", "Sketch021")
sketch22.AttachmentSupport = (doc.getObject("YZ_Plane"), [""])
sketch22.MapMode = "FlatFace"
sketch22.AttachmentOffset = App.Placement(Vector(0, 0, -1.9 * 25.4), App.Rotation())
sketch22.addGeometry([
    Part.LineSegment(Vector(14, -5.1, 0), Vector(11.4, -5.1, 0)),
    Part.LineSegment(Vector(11.4, -5.1, 0), Vector(11.4, -223.5, 0)),
    Part.LineSegment(Vector(11.4, -223.5, 0), Vector(14, -223.5, 0)),
    Part.LineSegment(Vector(14, -223.5, 0), Vector(14, -5.1, 0)),
], False)
sketch22.addConstraint([
    Sketcher.Constraint("Coincident", 0, 2, 1, 1),
    Sketcher.Constraint("Coincident", 1, 2, 2, 1),
    Sketcher.Constraint("Coincident", 2, 2, 3, 1),
    Sketcher.Constraint("Coincident", 3, 2, 0, 1),
    Sketcher.Constraint("Horizontal", 0),
    Sketcher.Constraint("Vertical", 1),
    Sketcher.Constraint("Horizontal", 2),
    Sketcher.Constraint("Vertical", 3),
    Sketcher.Constraint("DistanceX", 0, 2, 0, 1, Q("0.1 in")),
    Sketcher.Constraint("DistanceY", 1, 2, 1, 1, Q("8.6 in")),
    Sketcher.Constraint("DistanceY", 0, 2, -1, 1, Q("0.2 in")),
    Sketcher.Constraint("DistanceX", -1, 1, 0, 2, Q("0.45 in")),
])
pad12 = body.newObject("PartDesign::Pad", "Pad011")
pad12.Profile = sketch22
pad12.Length = Q("0.1 in")

# Sketch on YZ plane
sketch23 = body.newObject("Sketcher::SketchObject", "Sketch022")
sketch23.AttachmentSupport = (doc.getObject("YZ_Plane"), [""])
sketch23.MapMode = "FlatFace"
sketch23.AttachmentOffset = App.Placement(Vector(0, 0, 1.9 * 25.4), App.Rotation())
sketch23.addGeometry([
    Part.LineSegment(Vector(14, -223.5, 0), Vector(11.4, -223.5, 0)),
    Part.LineSegment(Vector(11.4, -223.5, 0), Vector(11.4, -5.1, 0)),
    Part.LineSegment(Vector(11.4, -5.1, 0), Vector(14, -5.1, 0)),
    Part.LineSegment(Vector(14, -5.1, 0), Vector(14, -223.5, 0)),
], False)
sketch23.addConstraint([
    Sketcher.Constraint("Coincident", 0, 2, 1, 1),
    Sketcher.Constraint("Coincident", 1, 2, 2, 1),
    Sketcher.Constraint("Coincident", 2, 2, 3, 1),
    Sketcher.Constraint("Coincident", 3, 2, 0, 1),
    Sketcher.Constraint("Horizontal", 0),
    Sketcher.Constraint("Vertical", 1),
    Sketcher.Constraint("Horizontal", 2),
    Sketcher.Constraint("Vertical", 3),
    Sketcher.Constraint("DistanceX", 0, 2, 0, 1, Q("0.1 in")),
    Sketcher.Constraint("DistanceY", 1, 1, 1, 2, Q("8.6 in")),
    Sketcher.Constraint("DistanceY", 0, 2, -1, 1, Q("8.8 in")),
    Sketcher.Constraint("DistanceX", -1, 1, 0, 2, Q("0.45 in")),
])
pad13 = body.newObject("PartDesign::Pad", "Pad012")
pad13.Profile = sketch23
pad13.Length = Q("0.1 in")
pad13.Reversed = True

# Sketch on YZ plane
sketch24 = body.newObject("Sketcher::SketchObject", "Sketch023")
sketch24.AttachmentSupport = (doc.getObject("YZ_Plane"), [""])
sketch24.MapMode = "FlatFace"
sketch24.AttachmentOffset = App.Placement(Vector(0, 0, -1.65 * 25.4), App.Rotation())
sketch24.addGeometry([
    Part.LineSegment(Vector(-13, -79, 0), Vector(-19, -79, 0)),
    Part.LineSegment(Vector(-19, -79, 0), Vector(-19, -73, 0)),
    Part.LineSegment(Vector(-19, -73, 0), Vector(-13, -73, 0)),
    Part.LineSegment(Vector(-13, -73, 0), Vector(-13, -79, 0)),
], False)
sketch24.addConstraint([
    Sketcher.Constraint("Coincident", 0, 2, 1, 1),
    Sketcher.Constraint("Coincident", 1, 2, 2, 1),
    Sketcher.Constraint("Coincident", 2, 2, 3, 1),
    Sketcher.Constraint("Coincident", 3, 2, 0, 1),
    Sketcher.Constraint("Horizontal", 0),
    Sketcher.Constraint("Vertical", 1),
    Sketcher.Constraint("Horizontal", 2),
    Sketcher.Constraint("Vertical", 3),
    Sketcher.Constraint("Equal", 2, 1),
    Sketcher.Constraint("DistanceX", 0, 2, 0, 1, Q("0.25 in")),
    Sketcher.Constraint("DistanceX", 2, 2, -1, 1, Q("0.5 in")),
    Sketcher.Constraint("DistanceY", 0, 2, -1, 1, Q("79.351296 mm")),
])
pocket11 = body.newObject("PartDesign::Pocket", "Pocket010")
pocket11.Profile = sketch24
pocket11.Length = Q("0.2 in")
pocket11.Reversed = True

# Sketch on XY plane
sketch25 = body.newObject("Sketcher::SketchObject", "Sketch024")
sketch25.AttachmentSupport = (doc.getObject("XY_Plane"), [""])
sketch25.MapMode = "FlatFace"
sketch25.addGeometry([
    Part.LineSegment(Vector(31, 18, 0), Vector(31, 8, 0)),  # 0
    Part.LineSegment(Vector(31, 8, 0), Vector(45, 8, 0)),  # 1
    Part.LineSegment(Vector(45, 8, 0), Vector(45, 18, 0)),  # 2
    Part.LineSegment(Vector(45, 18, 0), Vector(31, 18, 0)),  # 3
    Part.LineSegment(Vector(-45, 18, 0), Vector(-45, 8, 0)),  # 4
    Part.LineSegment(Vector(-45, 8, 0), Vector(-31, 8, 0)),  # 5
    Part.LineSegment(Vector(-31, 8, 0), Vector(-31, 18, 0)),  # 6
    Part.LineSegment(Vector(-31, 18, 0), Vector(-45, 18, 0)),  # 7
], False)
sketch25.addConstraint([
    Sketcher.Constraint("Coincident", 0, 2, 1, 1),
    Sketcher.Constraint("Coincident", 1, 2, 2, 1),
    Sketcher.Constraint("Coincident", 2, 2, 3, 1),
    Sketcher.Constraint("Coincident", 3, 2, 0, 1),
    Sketcher.Constraint("Coincident", 4, 2, 5, 1),
    Sketcher.Constraint("Coincident", 5, 2, 6, 1),
    Sketcher.Constraint("Coincident", 6, 2, 7, 1),
    Sketcher.Constraint("Coincident", 7, 2, 4, 1),
    Sketcher.Constraint("Vertical", 0),
    Sketcher.Constraint("Horizontal", 1),
    Sketcher.Constraint("Vertical", 2),
    Sketcher.Constraint("Horizontal", 3),
    Sketcher.Constraint("Vertical", 4),
    Sketcher.Constraint("Horizontal", 5),
    Sketcher.Constraint("Vertical", 6),
    Sketcher.Constraint("Horizontal", 7),
    Sketcher.Constraint("Symmetric", 1, 2, 4, 2, -2),
    Sketcher.Constraint("Symmetric", 3, 2, 6, 2, -2),
    Sketcher.Constraint("DistanceY", 0, 2, 0, 1, Q("0.4 in")),
    Sketcher.Constraint("DistanceX", 1, 1, 1, 2, Q("0.52 in")),
    Sketcher.Constraint("DistanceY", -1, 1, 0, 2, Q("0.3 in")),
    Sketcher.Constraint("DistanceX", -1, 1, 0, 2, Q("31.329039 mm")),
])
pocket12 = body.newObject("PartDesign::Pocket", "Pocket011")
pocket12.Profile = sketch25
pocket12.Length = Q("0.25 in")

# Sketch on YZ plane
sketch26 = body.newObject("Sketcher::SketchObject", "Sketch025")
sketch26.AttachmentSupport = (doc.getObject("YZ_Plane"), [""])
sketch26.MapMode = "FlatFace"
sketch26.AttachmentOffset = App.Placement(Vector(0, 0, -1.65 * 25.4), App.Rotation())
sketch26.addGeometry([
    Part.LineSegment(Vector(-13, -79, 0), Vector(-19, -79, 0)),
    Part.LineSegment(Vector(-19, -79, 0), Vector(-19, -73, 0)),
    Part.LineSegment(Vector(-19, -73, 0), Vector(-13, -73, 0)),
    Part.LineSegment(Vector(-13, -73, 0), Vector(-13, -79, 0)),
], False)
sketch26.addConstraint([
    Sketcher.Constraint("Coincident", 0, 2, 1, 1),
    Sketcher.Constraint("Coincident", 1, 2, 2, 1),
    Sketcher.Constraint("Coincident", 2, 2, 3, 1),
    Sketcher.Constraint("Coincident", 3, 2, 0, 1),
    Sketcher.Constraint("Horizontal", 0),
    Sketcher.Constraint("Vertical", 1),
    Sketcher.Constraint("Horizontal", 2),
    Sketcher.Constraint("Vertical", 3),
    Sketcher.Constraint("Equal", 2, 1),
    Sketcher.Constraint("DistanceX", 0, 2, 0, 1, Q("0.25 in")),
    Sketcher.Constraint("DistanceX", 2, 2, -1, 1, Q("0.5 in")),
    Sketcher.Constraint("DistanceY", 0, 2, -1, 1, Q("79.351296 mm")),
])
pad14 = body.newObject("PartDesign::Pad", "Pad013")
pad14.Profile = sketch26
pad14.Length = Q("0.15 in")

# Sketch on YZ plane
sketch27 = body.newObject("Sketcher::SketchObject", "Sketch026")
sketch27.AttachmentSupport = (doc.getObject("YZ_Plane"), [""])
sketch27.MapMode = "FlatFace"
sketch27.AttachmentOffset = App.Placement(Vector(0, 0, -1.65 * 25.4), App.Rotation())
sketch27.addGeometry([
    Part.LineSegment(Vector(-19, -79, 0), Vector(-25, -79, 0)),
    Part.LineSegment(Vector(-25, -79, 0), Vector(-25, -73, 0)),
    Part.LineSegment(Vector(-25, -73, 0), Vector(-19, -73, 0)),
    Part.LineSegment(Vector(-19, -73, 0), Vector(-19, -79, 0)),
], False)
sketch27.addConstraint([
    Sketcher.Constraint("Coincident", 0, 2, 1, 1),
    Sketcher.Constraint("Coincident", 1, 2, 2, 1),
    Sketcher.Constraint("Coincident", 2, 2, 3, 1),
    Sketcher.Constraint("Coincident", 3, 2, 0, 1),
    Sketcher.Constraint("Horizontal", 0),
    Sketcher.Constraint("Vertical", 1),
    Sketcher.Constraint("Horizontal", 2),
    Sketcher.Constraint("Vertical", 3),
    Sketcher.Constraint("Equal", 2, 1),
    Sketcher.Constraint("DistanceX", 0, 2, -1, 1, Q("1 in")),
    Sketcher.Constraint("DistanceX", 0, 2, 0, 1, Q("0.25 in")),
    Sketcher.Constraint("DistanceY", 0, 2, -1, 1, Q("79.351296 mm")),
])
pad15 = body.newObject("PartDesign::Pad", "Pad014")
pad15.Profile = sketch27
pad15.Length = Q("0.15 in")

# Sketch on YZ plane
sketch28 = body.newObject("Sketcher::SketchObject", "Sketch027")
sketch28.AttachmentSupport = (doc.getObject("YZ_Plane"), [""])
sketch28.MapMode = "FlatFace"
sketch28.AttachmentOffset = App.Placement(Vector(0, 0, -1.65 * 25.4), App.Rotation())
sketch28.addGeometry([
    Part.LineSegment(Vector(-19, -178, 0), Vector(-25, -178, 0)),
    Part.LineSegment(Vector(-25, -178, 0), Vector(-25, -171, 0)),
    Part.LineSegment(Vector(-25, -171, 0), Vector(-19, -171, 0)),
    Part.LineSegment(Vector(-19, -171, 0), Vector(-19, -178, 0)),
], False)
sketch28.addConstraint([
    Sketcher.Constraint("Coincident", 0, 2, 1, 1),
    Sketcher.Constraint("Coincident", 1, 2, 2, 1),
    Sketcher.Constraint("Coincident", 2, 2, 3, 1),
    Sketcher.Constraint("Coincident", 3, 2, 0, 1),
    Sketcher.Constraint("Horizontal", 0),
    Sketcher.Constraint("Vertical", 1),
    Sketcher.Constraint("Horizontal", 2),
    Sketcher.Constraint("Vertical", 3),
    Sketcher.Constraint("Equal", 2, 1),
    Sketcher.Constraint("DistanceX", 0, 2, -1, 1, Q("1 in")),
    Sketcher.Constraint("DistanceY", 0, 2, -1, 1, Q("7 in")),
    Sketcher.Constraint("DistanceX", 0, 2, 0, 1, Q("0.25 in")),
])
pad16 = body.newObject("PartDesign::Pad", "Pad015")
pad16.Profile = sketch28
pad16.Length = Q("0.15 in")

# Sketch on YZ plane
sketch29 = body.newObject("Sketcher::SketchObject", "Sketch028")
sketch29.AttachmentSupport = (doc.getObject("YZ_Plane"), [""])
sketch29.MapMode = "FlatFace"
sketch29.AttachmentOffset = App.Placement(Vector(0, 0, 1.65 * 25.4), App.Rotation())
sketch29.addGeometry([
    Part.LineSegment(Vector(-19, -73, 0), Vector(-25, -73, 0)),
    Part.LineSegment(Vector(-25, -73, 0), Vector(-25, -79, 0)),
    Part.LineSegment(Vector(-25, -79, 0), Vector(-19, -79, 0)),
    Part.LineSegment(Vector(-19, -79, 0), Vector(-19, -73, 0)),
], False)
sketch29.addConstraint([
    Sketcher.Constraint("Coincident", 0, 2, 1, 1),
    Sketcher.Constraint("Coincident", 1, 2, 2, 1),
    Sketcher.Constraint("Coincident", 2, 2, 3, 1),
    Sketcher.Constraint("Coincident", 3, 2, 0, 1),
    Sketcher.Constraint("Horizontal", 0),
    Sketcher.Constraint("Vertical", 1),
    Sketcher.Constraint("Horizontal", 2),
    Sketcher.Constraint("Vertical", 3),
    Sketcher.Constraint("Equal", 2, 1),
    Sketcher.Constraint("DistanceX", 0, 2, -1, 1, Q("1 in")),
    Sketcher.Constraint("DistanceX", 0, 2, 0, 1, Q("0.25 in")),
    Sketcher.Constraint("DistanceY", 0, 2, -1, 1, Q("73.001296 mm")),
])
pad17 = body.newObject("PartDesign::Pad", "Pad016")
pad17.Profile = sketch29
pad17.Length = Q("0.15 in")
pad17.Reversed = True

# Sketch on YZ plane
sketch30 = body.newObject("Sketcher::SketchObject", "Sketch029")
sketch30.AttachmentSupport = (doc.getObject("YZ_Plane"), [""])
sketch30.MapMode = "FlatFace"
sketch30.AttachmentOffset = App.Placement(Vector(0, 0, 1.65 * 25.4), App.Rotation())
sketch30.addGeometry([
    Part.LineSegment(Vector(-19, -171, 0), Vector(-25, -171, 0)),
    Part.LineSegment(Vector(-25, -171, 0), Vector(-25, -178, 0)),
    Part.LineSegment(Vector(-25, -178, 0), Vector(-19, -178, 0)),
    Part.LineSegment(Vector(-19, -178, 0), Vector(-19, -171, 0)),
], False)
sketch30.addConstraint([
    Sketcher.Constraint("Coincident", 0, 2, 1, 1),
    Sketcher.Constraint("Coincident", 1, 2, 2, 1),
    Sketcher.Constraint("Coincident", 2, 2, 3, 1),
    Sketcher.Constraint("Coincident", 3, 2, 0, 1),
    Sketcher.Constraint("Horizontal", 0),
    Sketcher.Constraint("Vertical", 1),
    Sketcher.Constraint("Horizontal", 2),
    Sketcher.Constraint("Vertical", 3),
    Sketcher.Constraint("Equal", 2, 1),
    Sketcher.Constraint("DistanceX", 0, 2, -1, 1, Q("1 in")),
    Sketcher.Constraint("DistanceY", 1, 2, -1, 1, Q("7 in")),
    Sketcher.Constraint("DistanceX", 0, 2, 0, 1, Q("0.25 in")),
])
pad18 = body.newObject("PartDesign::Pad", "Pad017")
pad18.Profile = sketch30
pad18.Length = Q("0.15 in")
pad18.Reversed = True

# Sketch on XZ plane
sketch31 = body.newObject("Sketcher::SketchObject", "Sketch030")
sketch31.AttachmentSupport = (doc.getObject("XZ_Plane"), [""])
sketch31.MapMode = "FlatFace"
sketch31.AttachmentOffset = App.Placement(Vector(0, 0, 1 * 25.4), App.Rotation())
sketch31.addGeometry([
    Part.LineSegment(Vector(-38, -25, 0), Vector(-38, -203, 0)),
    Part.LineSegment(Vector(-38, -203, 0), Vector(38, -203, 0)),
    Part.LineSegment(Vector(38, -203, 0), Vector(38, -25, 0)),
    Part.LineSegment(Vector(38, -25, 0), Vector(-38, -25, 0)),
], False)
sketch31.addConstraint([
    Sketcher.Constraint("Coincident", 0, 2, 1, 1),
    Sketcher.Constraint("Coincident", 1, 2, 2, 1),
    Sketcher.Constraint("Coincident", 2, 2, 3, 1),
    Sketcher.Constraint("Coincident", 3, 2, 0, 1),
    Sketcher.Constraint("Vertical", 0),
    Sketcher.Constraint("Horizontal", 1),
    Sketcher.Constraint("Vertical", 2),
    Sketcher.Constraint("Horizontal", 3),
    Sketcher.Constraint("DistanceX", 1, 1, 1, 2, Q("3 in")),
    Sketcher.Constraint("DistanceY", 0, 2, 0, 1, Q("7 in")),
    Sketcher.Constraint("DistanceY", 0, 2, -1, 1, Q("8 in")),
    Sketcher.Constraint("DistanceX", 0, 2, -1, 1, Q("1.5 in")),
])
pad19 = body.newObject("PartDesign::Pad", "Pad018")
pad19.Profile = sketch31
pad19.Length = Q("0.3 in")
pad19.Reversed = True

# Sketch on YZ plane
sketch32 = body.newObject("Sketcher::SketchObject", "Sketch031")
sketch32.AttachmentSupport = (doc.getObject("YZ_Plane"), [""])
sketch32.MapMode = "FlatFace"
sketch32.AttachmentOffset = App.Placement(Vector(0, 0, -1.65 * 25.4), App.Rotation())
sketch32.addGeometry(Part.Circle(Vector(-21.6, -76.2, 0), Vector(0, 0, 1), 2.5), False)
sketch32.addConstraint([
    Sketcher.Constraint("Diameter", 0, Q("0.2 in")),
    Sketcher.Constraint("DistanceX", 0, 3, -1, 1, Q("0.85 in")),
    Sketcher.Constraint("DistanceY", 0, 3, -1, 1, Q("76.176296 mm")),
])
pocket13 = body.newObject("PartDesign::Pocket", "Pocket012")
pocket13.Profile = sketch32
pocket13.Length = Q("3.3 in")
pocket13.Reversed = True

# Sketch on YZ plane
sketch33 = body.newObject("Sketcher::SketchObject", "Sketch032")
sketch33.AttachmentSupport = (doc.getObject("YZ_Plane"), [""])
sketch33.MapMode = "FlatFace"
sketch33.AttachmentOffset = App.Placement(Vector(0, 0, -1.65 * 25.4), App.Rotation())
sketch33.addGeometry(Part.Circle(Vector(-21.6, -174.6, 0), Vector(0, 0, 1), 2.5), False)
sketch33.addConstraint([
    Sketcher.Constraint("Diameter", 0, Q("0.2 in")),
    Sketcher.Constraint("DistanceX", 0, 3, -1, 1, Q("0.85 in")),
    Sketcher.Constraint("DistanceY", 0, 3, -1, 1, Q("6.875 in")),
])
pocket14 = body.newObject("PartDesign::Pocket", "Pocket013")
pocket14.Profile = sketch33
pocket14.Length = Q("3.3 in")
pocket14.Reversed = True

doc.recompute()
